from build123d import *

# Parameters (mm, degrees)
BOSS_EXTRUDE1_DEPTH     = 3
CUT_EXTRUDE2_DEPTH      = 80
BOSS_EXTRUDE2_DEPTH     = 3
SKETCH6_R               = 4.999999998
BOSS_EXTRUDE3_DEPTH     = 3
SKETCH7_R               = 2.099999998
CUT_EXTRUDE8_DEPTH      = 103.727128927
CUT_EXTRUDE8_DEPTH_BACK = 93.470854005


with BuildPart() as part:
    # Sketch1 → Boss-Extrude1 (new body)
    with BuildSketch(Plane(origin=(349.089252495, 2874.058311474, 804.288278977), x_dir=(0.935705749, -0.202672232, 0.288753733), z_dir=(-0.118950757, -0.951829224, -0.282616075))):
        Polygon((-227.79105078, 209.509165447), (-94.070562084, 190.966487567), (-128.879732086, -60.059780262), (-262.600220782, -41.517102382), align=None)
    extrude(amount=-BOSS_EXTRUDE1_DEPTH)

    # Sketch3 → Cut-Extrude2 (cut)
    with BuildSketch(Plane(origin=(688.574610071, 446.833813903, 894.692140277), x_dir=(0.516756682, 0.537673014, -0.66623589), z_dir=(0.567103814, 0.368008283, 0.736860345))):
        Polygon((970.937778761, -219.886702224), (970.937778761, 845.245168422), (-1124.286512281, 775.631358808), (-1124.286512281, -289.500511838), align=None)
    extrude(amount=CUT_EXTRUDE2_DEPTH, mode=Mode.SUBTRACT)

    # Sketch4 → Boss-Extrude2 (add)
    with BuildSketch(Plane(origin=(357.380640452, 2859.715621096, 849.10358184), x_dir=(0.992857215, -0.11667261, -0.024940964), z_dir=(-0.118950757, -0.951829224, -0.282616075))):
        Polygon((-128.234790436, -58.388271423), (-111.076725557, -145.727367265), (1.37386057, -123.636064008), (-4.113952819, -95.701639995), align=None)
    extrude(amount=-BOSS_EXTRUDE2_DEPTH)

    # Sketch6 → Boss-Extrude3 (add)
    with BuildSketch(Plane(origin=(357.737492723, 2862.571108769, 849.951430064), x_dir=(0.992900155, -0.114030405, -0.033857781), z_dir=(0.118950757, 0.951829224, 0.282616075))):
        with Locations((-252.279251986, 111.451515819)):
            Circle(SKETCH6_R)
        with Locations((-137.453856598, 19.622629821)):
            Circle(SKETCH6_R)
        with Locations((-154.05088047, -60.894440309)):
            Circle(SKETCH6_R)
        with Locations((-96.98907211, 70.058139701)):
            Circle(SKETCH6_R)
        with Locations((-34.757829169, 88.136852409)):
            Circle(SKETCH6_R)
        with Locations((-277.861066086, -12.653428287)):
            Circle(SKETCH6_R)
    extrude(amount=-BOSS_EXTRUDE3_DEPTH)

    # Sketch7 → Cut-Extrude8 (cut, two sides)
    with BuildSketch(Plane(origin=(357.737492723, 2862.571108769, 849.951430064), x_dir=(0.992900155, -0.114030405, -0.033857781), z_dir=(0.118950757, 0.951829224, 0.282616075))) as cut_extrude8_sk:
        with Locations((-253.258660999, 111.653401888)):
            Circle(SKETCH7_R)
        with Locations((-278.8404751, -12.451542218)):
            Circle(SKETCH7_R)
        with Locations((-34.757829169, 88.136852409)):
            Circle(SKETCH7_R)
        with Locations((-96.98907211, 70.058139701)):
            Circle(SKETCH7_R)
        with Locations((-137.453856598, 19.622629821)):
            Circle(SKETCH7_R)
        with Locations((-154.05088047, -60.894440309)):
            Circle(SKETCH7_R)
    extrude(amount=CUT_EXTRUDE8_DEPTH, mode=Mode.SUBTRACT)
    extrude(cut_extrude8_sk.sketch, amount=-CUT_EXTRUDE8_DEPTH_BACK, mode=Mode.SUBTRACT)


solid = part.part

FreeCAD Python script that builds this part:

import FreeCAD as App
import Part
import Sketcher

V = App.Vector
Q = App.Units.Quantity


def add_polygon(sketch, points):
    """Adds a closed chain of lines whose ends are joined by coincident constraints."""
    first, n = sketch.GeometryCount, len(points)
    for a, b in zip(points, points[1:] + points[:1]):
        sketch.addGeometry(Part.LineSegment(App.Vector(*a, 0), App.Vector(*b, 0)), False)
    for i in range(n):
        sketch.addConstraint(Sketcher.Constraint("Coincident", first + i, 2, first + (i + 1) % n, 1))

doc = App.newDocument("Part")
params = doc.addObject("Spreadsheet::Sheet", "Params")
for row, (alias, value) in enumerate([
    ("sketch1_length", "135 mm"),
    ("pad1_length", "3 mm"),
    ("pocket1_length", "80 mm"),
    ("sketch3_length", "114.6 mm"),
    ("pad2_length", "3 mm"),
    ("sketch4_diameter", "10 mm"),
    ("pad3_length", "3 mm"),
    ("sketch5_diameter", "4.2 mm"),
], start=1):
    params.set(f"A{row}", alias)
    params.set(f"B{row}", "=" + value)
    params.setAlias(f"B{row}", alias)

body = doc.addObject("PartDesign::Body", "Body")

sketch1 = body.newObject("Sketcher::SketchObject", "Sketch")
sketch1.Placement = App.Placement(V(349.089252, 2874.058311, 804.288279), App.Rotation(V(0.935705749, -0.202672232, 0.288753733), V(-0.332122672, -0.230098011, 0.914740092), V(-0.118950757, -0.951829224, -0.282616075), "ZXY"))
add_polygon(sketch1, [(-94, 191), (-228, 210), (-263, -42), (-129, -60)])
sketch1.addConstraint(Sketcher.Constraint("Perpendicular", 0, 1))
sketch1.addConstraint(Sketcher.Constraint("Perpendicular", 1, 2))
sketch1.addConstraint(Sketcher.Constraint("Perpendicular", 2, 3))
sketch1.addConstraint(Sketcher.Constraint("Distance", 0, Q("135 mm")))
sketch1.addConstraint(Sketcher.Constraint("DistanceX", 0, 2, -1, 1, Q("227.791051 mm")))
sketch1.addConstraint(Sketcher.Constraint("DistanceX", 1, 2, -1, 1, Q("262.600221 mm")))
sketch1.addConstraint(Sketcher.Constraint("DistanceY", 2, 2, -1, 1, Q("60.05978 mm")))
sketch1.addConstraint(Sketcher.Constraint("DistanceY", 1, 2, 0, 2, Q("251.026268 mm")))
sketch1.setExpression("Constraints[7]", "Params.sketch1_length")
pad1 = body.newObject("PartDesign::Pad", "Pad")
pad1.Profile = sketch1
pad1.setExpression("Length", "Params.pad1_length")
pad1.Reversed = True

sketch2 = body.newObject("Sketcher::SketchObject", "Sketch001")
sketch2.Placement = App.Placement(V(688.57461, 446.833814, 894.69214), App.Rotation(V(0.516756682, 0.537673014, -0.66623589), V(-0.641370249, 0.758602421, 0.114745678), V(0.567103814, 0.368008283, 0.736860345), "ZXY"))
add_polygon(sketch2, [(971, -220), (971, 845), (-1124, 776), (-1124, -290)])
sketch2.addConstraint(Sketcher.Constraint("Vertical", 0))
sketch2.addConstraint(Sketcher.Constraint("Vertical", 2))
sketch2.addConstraint(Sketcher.Constraint("Parallel", 1, 3))
sketch2.addConstraint(Sketcher.Constraint("DistanceY", 0, 1, 0, 2, Q("1065.13187 mm")))
sketch2.addConstraint(Sketcher.Constraint("Distance", 1, Q("2096.38043 mm")))
sketch2.addConstraint(Sketcher.Constraint("DistanceX", -1, 1, 0, 2, Q("970.937778 mm")))
sketch2.addConstraint(Sketcher.Constraint("DistanceY", -1, 1, 0, 2, Q("845.245168 mm")))
sketch2.addConstraint(Sketcher.Constraint("DistanceX", 1, 2, -1, 1, Q("1124.286512 mm")))
pocket1 = body.newObject("PartDesign::Pocket", "Pocket")
pocket1.Profile = sketch2
pocket1.setExpression("Length", "Params.pocket1_length")
pocket1.Reversed = True

sketch3 = body.newObject("Sketcher::SketchObject", "Sketch002")
sketch3.Placement = App.Placement(V(357.38064, 2859.715621, 849.103582), App.Rotation(V(0.992857215, -0.11667261, -0.024940964), V(-0.009234017, -0.283564156, 0.958908808), V(-0.118950757, -0.951829224, -0.282616075), "ZXY"))
add_polygon(sketch3, [(-128, -58), (-111, -146), (1, -124), (-4, -96)])
sketch3.addConstraint(Sketcher.Constraint("Perpendicular", 0, 1))
sketch3.addConstraint(Sketcher.Constraint("Perpendicular", 1, 2))
sketch3.addConstraint(Sketcher.Constraint("Distance", 1, Q("114.6 mm")))
sketch3.addConstraint(Sketcher.Constraint("Distance", 0, Q("89.008521 mm")))
sketch3.addConstraint(Sketcher.Constraint("Distance", 2, Q("28.468371 mm")))
sketch3.addConstraint(Sketcher.Constraint("DistanceX", -1, 1, 1, 2, Q("1.373861 mm")))
sketch3.addConstraint(Sketcher.Constraint("DistanceY", 2, 2, -1, 1, Q("95.70164 mm")))
sketch3.addConstraint(Sketcher.Constraint("DistanceX", 3, 2, -1, 1, Q("128.23479 mm")))
sketch3.setExpression("Constraints[6]", "Params.sketch3_length")
pad2 = body.newObject("PartDesign::Pad", "Pad001")
pad2.Profile = sketch3
pad2.setExpression("Length", "Params.pad2_length")
pad2.Reversed = True

sketch4 = body.newObject("Sketcher::SketchObject", "Sketch003")
sketch4.Placement = App.Placement(V(357.737493, 2862.571109, 849.95143), App.Rotation(V(0.992900155, -0.114030405, -0.033857781), V(0, 0.284636953, -0.958635387), V(0.118950757, 0.951829224, 0.282616075), "ZXY"))
sketch4.addGeometry(Part.Circle(V(-252.3, 111.5, 0), V(0, 0, 1), 5), False)
sketch4.addGeometry(Part.Circle(V(-137.5, 19.6, 0), V(0, 0, 1), 5), False)
sketch4.addGeometry(Part.Circle(V(-154.1, -60.9, 0), V(0, 0, 1), 5), False)
sketch4.addGeometry(Part.Circle(V(-97, 70.1, 0), V(0, 0, 1), 5), False)
sketch4.addGeometry(Part.Circle(V(-34.8, 88.1, 0), V(0, 0, 1), 5), False)
sketch4.addGeometry(Part.Circle(V(-277.9, -12.7, 0), V(0, 0, 1), 5), False)
sketch4.addConstraint(Sketcher.Constraint("Equal", 0, 1))
sketch4.addConstraint(Sketcher.Constraint("Equal", 1, 2))
sketch4.addConstraint(Sketcher.Constraint("Equal", 2, 3))
sketch4.addConstraint(Sketcher.Constraint("Equal", 3, 4))
sketch4.addConstraint(Sketcher.Constraint("Equal", 4, 5))
sketch4.addConstraint(Sketcher.Constraint("Diameter", 0, Q("10 mm")))
sketch4.addConstraint(Sketcher.Constraint("DistanceY", -1, 1, 1, 3, Q("19.62263 mm")))
sketch4.addConstraint(Sketcher.Constraint("DistanceX", 2, 3, -1, 1, Q("154.050881 mm")))
sketch4.addConstraint(Sketcher.Constraint("DistanceY", 2, 3, -1, 1, Q("60.89444 mm")))
sketch4.addConstraint(Sketcher.Constraint("DistanceY", -1, 1, 3, 3, Q("70.05814 mm")))
sketch4.addConstraint(Sketcher.Constraint("DistanceX", 4, 3, -1, 1, Q("34.757829 mm")))
sketch4.addConstraint(Sketcher.Constraint("DistanceY", 5, 3, -1, 1, Q("12.653428 mm")))
sketch4.addConstraint(Sketcher.Constraint("DistanceX", 0, 3, 2, 3, Q("98.228372 mm")))
sketch4.addConstraint(Sketcher.Constraint("DistanceX", 2, 3, 3, 3, Q("57.061808 mm")))
sketch4.addConstraint(Sketcher.Constraint("DistanceX", 5, 3, 1, 3, Q("140.40721 mm")))
sketch4.addConstraint(Sketcher.Constraint("DistanceY", 5, 3, 4, 3, Q("100.790281 mm")))
sketch4.addConstraint(Sketcher.Constraint("DistanceY", -1, 1, 0, 3, Q("111.451516 mm")))
sketch4.addConstraint(Sketcher.Constraint("DistanceX", 1, 3, -1, 1, Q("137.453857 mm")))
sketch4.setExpression("Constraints[5]", "Params.sketch4_diameter")
pad3 = body.newObject("PartDesign::Pad", "Pad002")
pad3.Profile = sketch4
pad3.setExpression("Length", "Params.pad3_length")
pad3.Reversed = True

sketch5 = body.newObject("Sketcher::SketchObject", "Sketch004")
sketch5.Placement = App.Placement(V(357.737493, 2862.571109, 849.95143), App.Rotation(V(0.992900155, -0.114030405, -0.033857781), V(0, 0.284636953, -0.958635387), V(0.118950757, 0.951829224, 0.282616075), "ZXY"))
sketch5.addGeometry(Part.Circle(V(-253.3, 111.7, 0), V(0, 0, 1), 2.1), False)
sketch5.addGeometry(Part.Circle(V(-278.8, -12.5, 0), V(0, 0, 1), 2.1), False)
sketch5.addGeometry(Part.Circle(V(-34.8, 88.1, 0), V(0, 0, 1), 2.1), False)
sketch5.addGeometry(Part.Circle(V(-97, 70.1, 0), V(0, 0, 1), 2.1), False)
sketch5.addGeometry(Part.Circle(V(-137.5, 19.6, 0), V(0, 0, 1), 2.1), False)
sketch5.addGeometry(Part.Circle(V(-154.1, -60.9, 0), V(0, 0, 1), 2.1), False)
sketch5.addConstraint(Sketcher.Constraint("Equal", 0, 1))
sketch5.addConstraint(Sketcher.Constraint("Equal", 1, 2))
sketch5.addConstraint(Sketcher.Constraint("Equal", 2, 3))
sketch5.addConstraint(Sketcher.Constraint("Equal", 3, 4))
sketch5.addConstraint(Sketcher.Constraint("Equal", 4, 5))
sketch5.addConstraint(Sketcher.Constraint("Diameter", 0, Q("4.2 mm")))
sketch5.addConstraint(Sketcher.Constraint("DistanceY", -1, 1, 0, 3, Q("111.653402 mm")))
sketch5.addConstraint(Sketcher.Constraint("DistanceY", 5, 3, 1, 3, Q("48.442898 mm")))
sketch5.addConstraint(Sketcher.Constraint("DistanceX", 0, 3, -1, 1, Q("253.258661 mm")))
sketch5.addConstraint(Sketcher.Constraint("DistanceX", 2, 3, -1, 1, Q("34.757829 mm")))
sketch5.addConstraint(Sketcher.Constraint("DistanceY", -1, 1, 3, 3, Q("70.05814 mm")))
sketch5.addConstraint(Sketcher.Constraint("DistanceY", -1, 1, 4, 3, Q("19.62263 mm")))
sketch5.addConstraint(Sketcher.Constraint("DistanceX", 5, 3, -1, 1, Q("154.050881 mm")))
sketch5.addConstraint(Sketcher.Constraint("DistanceY", 5, 3, -1, 1, Q("60.89444 mm")))
sketch5.addConstraint(Sketcher.Constraint("DistanceY", 2, 3, 0, 3, Q("23.516549 mm")))
sketch5.addConstraint(Sketcher.Constraint("DistanceX", 0, 3, 3, 3, Q("156.269589 mm")))
sketch5.addConstraint(Sketcher.Constraint("DistanceX", 1, 3, 4, 3, Q("141.386619 mm")))
sketch5.addConstraint(Sketcher.Constraint("DistanceX", 1, 3, -1, 1, Q("278.840475 mm")))
sketch5.setExpression("Constraints[5]", "Params.sketch5_diameter")
pocket2 = body.newObject("PartDesign::Pocket", "Pocket001")
pocket2.Profile = sketch5
pocket2.Type = "ThroughAll"
pocket2.Midplane = True

doc.recompute()
